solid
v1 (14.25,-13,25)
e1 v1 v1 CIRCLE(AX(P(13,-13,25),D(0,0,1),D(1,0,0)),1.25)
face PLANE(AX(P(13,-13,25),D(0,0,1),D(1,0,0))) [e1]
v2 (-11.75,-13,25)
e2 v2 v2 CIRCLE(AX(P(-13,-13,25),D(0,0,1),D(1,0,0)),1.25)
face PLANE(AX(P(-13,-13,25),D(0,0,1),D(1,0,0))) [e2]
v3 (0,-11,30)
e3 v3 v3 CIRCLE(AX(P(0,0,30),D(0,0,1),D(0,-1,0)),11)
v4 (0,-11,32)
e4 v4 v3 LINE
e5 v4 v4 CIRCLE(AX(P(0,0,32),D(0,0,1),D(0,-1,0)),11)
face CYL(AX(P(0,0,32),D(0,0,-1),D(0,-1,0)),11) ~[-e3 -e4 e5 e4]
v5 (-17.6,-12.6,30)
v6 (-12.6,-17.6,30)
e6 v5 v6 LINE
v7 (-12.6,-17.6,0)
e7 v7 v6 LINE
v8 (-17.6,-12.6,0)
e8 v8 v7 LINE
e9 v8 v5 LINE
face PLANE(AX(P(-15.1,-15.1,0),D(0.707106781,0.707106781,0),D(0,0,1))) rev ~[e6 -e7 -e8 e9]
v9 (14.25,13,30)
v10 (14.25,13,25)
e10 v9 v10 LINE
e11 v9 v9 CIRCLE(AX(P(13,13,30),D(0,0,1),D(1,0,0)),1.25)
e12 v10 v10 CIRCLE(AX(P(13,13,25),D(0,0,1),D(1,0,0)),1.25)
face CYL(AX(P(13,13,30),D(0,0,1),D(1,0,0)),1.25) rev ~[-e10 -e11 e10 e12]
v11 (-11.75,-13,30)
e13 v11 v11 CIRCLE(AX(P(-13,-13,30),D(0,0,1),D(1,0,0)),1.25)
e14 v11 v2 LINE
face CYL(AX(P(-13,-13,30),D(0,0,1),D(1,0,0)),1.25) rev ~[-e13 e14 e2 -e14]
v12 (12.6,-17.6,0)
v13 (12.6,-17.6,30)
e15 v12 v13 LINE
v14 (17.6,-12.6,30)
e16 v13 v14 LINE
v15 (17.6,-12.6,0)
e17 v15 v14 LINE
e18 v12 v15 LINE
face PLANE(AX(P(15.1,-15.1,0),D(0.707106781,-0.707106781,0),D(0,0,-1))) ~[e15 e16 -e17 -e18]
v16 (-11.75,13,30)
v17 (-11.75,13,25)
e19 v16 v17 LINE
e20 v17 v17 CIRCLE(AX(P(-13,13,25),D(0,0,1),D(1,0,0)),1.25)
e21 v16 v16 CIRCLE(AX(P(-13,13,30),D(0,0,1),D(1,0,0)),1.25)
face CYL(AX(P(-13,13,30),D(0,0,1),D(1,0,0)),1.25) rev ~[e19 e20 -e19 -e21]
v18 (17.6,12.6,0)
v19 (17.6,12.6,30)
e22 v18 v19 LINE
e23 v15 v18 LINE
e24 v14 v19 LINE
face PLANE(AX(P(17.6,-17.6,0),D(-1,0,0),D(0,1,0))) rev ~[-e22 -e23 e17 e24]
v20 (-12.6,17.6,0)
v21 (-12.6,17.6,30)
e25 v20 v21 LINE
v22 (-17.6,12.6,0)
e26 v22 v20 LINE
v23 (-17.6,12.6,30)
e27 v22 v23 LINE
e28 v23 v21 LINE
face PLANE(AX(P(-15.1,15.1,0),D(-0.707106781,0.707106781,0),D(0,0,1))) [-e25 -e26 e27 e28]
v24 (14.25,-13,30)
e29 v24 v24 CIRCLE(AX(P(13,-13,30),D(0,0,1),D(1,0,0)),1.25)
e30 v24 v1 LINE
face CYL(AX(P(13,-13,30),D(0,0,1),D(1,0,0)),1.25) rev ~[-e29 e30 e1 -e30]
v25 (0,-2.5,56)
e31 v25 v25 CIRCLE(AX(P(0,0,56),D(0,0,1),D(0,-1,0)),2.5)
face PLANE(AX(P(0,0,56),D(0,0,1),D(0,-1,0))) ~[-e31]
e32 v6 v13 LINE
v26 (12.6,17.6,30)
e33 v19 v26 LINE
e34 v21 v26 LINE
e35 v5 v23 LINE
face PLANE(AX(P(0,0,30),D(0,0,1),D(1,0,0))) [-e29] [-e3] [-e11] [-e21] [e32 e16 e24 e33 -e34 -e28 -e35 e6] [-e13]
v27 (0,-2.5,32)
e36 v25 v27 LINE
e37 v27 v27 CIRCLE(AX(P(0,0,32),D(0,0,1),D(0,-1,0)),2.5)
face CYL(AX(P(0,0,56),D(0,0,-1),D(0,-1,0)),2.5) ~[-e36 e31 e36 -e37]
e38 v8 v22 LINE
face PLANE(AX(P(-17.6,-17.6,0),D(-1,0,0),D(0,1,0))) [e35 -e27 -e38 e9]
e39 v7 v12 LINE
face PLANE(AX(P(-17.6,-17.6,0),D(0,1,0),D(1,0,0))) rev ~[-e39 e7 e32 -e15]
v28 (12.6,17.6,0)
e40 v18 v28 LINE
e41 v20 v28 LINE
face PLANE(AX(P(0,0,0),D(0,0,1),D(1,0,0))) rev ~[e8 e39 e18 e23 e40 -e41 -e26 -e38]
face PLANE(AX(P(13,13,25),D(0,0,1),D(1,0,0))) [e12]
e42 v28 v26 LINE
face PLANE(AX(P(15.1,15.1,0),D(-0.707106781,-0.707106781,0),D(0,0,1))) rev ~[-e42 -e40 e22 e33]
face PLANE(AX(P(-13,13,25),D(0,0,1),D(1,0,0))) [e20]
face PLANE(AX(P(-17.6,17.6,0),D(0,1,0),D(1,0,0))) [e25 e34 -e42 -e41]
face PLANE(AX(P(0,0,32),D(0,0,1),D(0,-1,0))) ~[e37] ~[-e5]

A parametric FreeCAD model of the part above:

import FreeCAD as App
import Part
import Sketcher
from FreeCAD import Vector
Q = App.Units.Quantity


def edges_at(feature, points):
    """Names of the edges that pass closest to the given points."""
    edges = feature.Shape.Edges
    near = lambda p: min(range(len(edges)), key=lambda i: edges[i].distToShape(Part.Vertex(*p))[0])
    return sorted({f"Edge{near(p) + 1}" for p in points})


def add_polygon(sketch, points):
    """Adds a closed chain of lines whose ends are joined by coincident constraints."""
    first, n = sketch.GeometryCount, len(points)
    for a, b in zip(points, points[1:] + points[:1]):
        sketch.addGeometry(Part.LineSegment(App.Vector(*a, 0), App.Vector(*b, 0)), False)
    for i in range(n):
        sketch.addConstraint(Sketcher.Constraint("Coincident", first + i, 2, first + (i + 1) % n, 1))

doc = App.newDocument("Part")
params = doc.addObject("Spreadsheet::Sheet", "Params")
for row, (alias, value) in enumerate([
    ("sketch1_width", "35.2 mm"),
    ("pad1_length", "30 mm"),
    ("chamfer_size", "5 mm"),
    ("sketch2_width", "11 mm"),
    ("sketch2_height", "26 mm"),
    ("sketch2_height2", "24 mm"),
    ("sketch2_width2", "2.5 mm"),
    ("revolution_angle", "360 deg"),
    ("sketch3_diameter", "2.5 mm"),
    ("pocket1_length", "5 mm"),
], start=1):
    params.set(f"A{row}", alias)
    params.set(f"B{row}", "=" + value)
    params.setAlias(f"B{row}", alias)

body = doc.addObject("PartDesign::Body", "Body")

sketch1 = body.newObject("Sketcher::SketchObject", "Sketch")
sketch1.AttachmentSupport = (doc.getObject("XY_Plane"), [""])
sketch1.MapMode = "FlatFace"
add_polygon(sketch1, [(-17.6, 17.6), (-17.6, -17.6), (17.6, -17.6), (17.6, 17.6)])
sketch1.addConstraint([
    Sketcher.Constraint("Vertical", 0),
    Sketcher.Constraint("Horizontal", 1),
    Sketcher.Constraint("Vertical", 2),
    Sketcher.Constraint("Horizontal", 3),
    Sketcher.Constraint("Symmetric", 0, 2, 2, 2, -1, 1),
    Sketcher.Constraint("Equal", 3, 0),
    Sketcher.Constraint("DistanceX", 1, 1, 1, 2, Q("35.2 mm")),
])
sketch1.setExpression("Constraints[10]", "Params.sketch1_width")
pad1 = body.newObject("PartDesign::Pad", "Pad")
pad1.Profile = sketch1
pad1.setExpression("Length", "Params.pad1_length")
doc.recompute()

chamfer = body.newObject("PartDesign::Chamfer", "Chamfer")
chamfer.Base = (pad1, edges_at(pad1, [
    (17.6, -17.6, 15),
    (-17.6, -17.6, 15),
    (-17.6, 17.6, 15),
    (17.6, 17.6, 15),
]))
chamfer.setExpression("Size", "Params.chamfer_size")

sketch2 = body.newObject("Sketcher::SketchObject", "Sketch001")
sketch2.AttachmentSupport = (doc.getObject("YZ_Plane"), [""])
sketch2.MapMode = "FlatFace"
add_polygon(sketch2, [(-11, 30), (0, 30), (0, 56), (-2.5, 56), (-2.5, 32), (-11, 32)])
sketch2.addConstraint([
    Sketcher.Constraint("Horizontal", 0),
    Sketcher.Constraint("Vertical", 1),
    Sketcher.Constraint("Horizontal", 2),
    Sketcher.Constraint("Vertical", 3),
    Sketcher.Constraint("Horizontal", 4),
    Sketcher.Constraint("Vertical", 5),
    Sketcher.Constraint("PointOnObject", 0, 2, -2),
    Sketcher.Constraint("DistanceX", 0, 1, 0, 2, Q("11 mm")),
    Sketcher.Constraint("DistanceY", 1, 1, 1, 2, Q("26 mm")),
    Sketcher.Constraint("DistanceY", 3, 2, 3, 1, Q("24 mm")),
    Sketcher.Constraint("DistanceX", 2, 2, 2, 1, Q("2.5 mm")),
    Sketcher.Constraint("DistanceY", -1, 1, 0, 2, Q("30 mm")),
])
sketch2.setExpression("Constraints[13]", "Params.sketch2_width")
sketch2.setExpression("Constraints[14]", "Params.sketch2_height")
sketch2.setExpression("Constraints[15]", "Params.sketch2_height2")
sketch2.setExpression("Constraints[16]", "Params.sketch2_width2")
revolution = body.newObject("PartDesign::Revolution", "Revolution")
revolution.Profile = sketch2
revolution.ReferenceAxis = (sketch2, ["V_Axis"])
revolution.setExpression("Angle", "Params.revolution_angle")

sketch3 = body.newObject("Sketcher::SketchObject", "Sketch002")
sketch3.AttachmentSupport = (doc.getObject("XY_Plane"), [""])
sketch3.MapMode = "FlatFace"
sketch3.AttachmentOffset = App.Placement(Vector(0, 0, 30), App.Rotation())
sketch3.addGeometry([
    Part.Circle(Vector(-13, 13, 0), Vector(0, 0, 1), 1.25),
    Part.Circle(Vector(13, 13, 0), Vector(0, 0, 1), 1.25),
    Part.Circle(Vector(13, -13, 0), Vector(0, 0, 1), 1.25),
    Part.Circle(Vector(-13, -13, 0), Vector(0, 0, 1), 1.25),
], False)
sketch3.addConstraint([
    Sketcher.Constraint("Equal", 0, 1),
    Sketcher.Constraint("Equal", 1, 2),
    Sketcher.Constraint("Equal", 2, 3),
    Sketcher.Constraint("Symmetric", 0, 3, 2, 3, -1, 1),
    Sketcher.Constraint("Symmetric", 1, 3, 3, 3, -1, 1),
    Sketcher.Constraint("Symmetric", 0, 3, 1, 3, -2),
    Sketcher.Constraint("Diameter", 0, Q("2.5 mm")),
    Sketcher.Constraint("DistanceX", 0, 3, -1, 1, Q("13 mm")),
    Sketcher.Constraint("DistanceY", -1, 1, 0, 3, Q("13 mm")),
])
sketch3.setExpression("Constraints[6]", "Params.sketch3_diameter")
pocket1 = body.newObject("PartDesign::Pocket", "Pocket")
pocket1.Profile = sketch3
pocket1.setExpression("Length", "Params.pocket1_length")

doc.recompute()
